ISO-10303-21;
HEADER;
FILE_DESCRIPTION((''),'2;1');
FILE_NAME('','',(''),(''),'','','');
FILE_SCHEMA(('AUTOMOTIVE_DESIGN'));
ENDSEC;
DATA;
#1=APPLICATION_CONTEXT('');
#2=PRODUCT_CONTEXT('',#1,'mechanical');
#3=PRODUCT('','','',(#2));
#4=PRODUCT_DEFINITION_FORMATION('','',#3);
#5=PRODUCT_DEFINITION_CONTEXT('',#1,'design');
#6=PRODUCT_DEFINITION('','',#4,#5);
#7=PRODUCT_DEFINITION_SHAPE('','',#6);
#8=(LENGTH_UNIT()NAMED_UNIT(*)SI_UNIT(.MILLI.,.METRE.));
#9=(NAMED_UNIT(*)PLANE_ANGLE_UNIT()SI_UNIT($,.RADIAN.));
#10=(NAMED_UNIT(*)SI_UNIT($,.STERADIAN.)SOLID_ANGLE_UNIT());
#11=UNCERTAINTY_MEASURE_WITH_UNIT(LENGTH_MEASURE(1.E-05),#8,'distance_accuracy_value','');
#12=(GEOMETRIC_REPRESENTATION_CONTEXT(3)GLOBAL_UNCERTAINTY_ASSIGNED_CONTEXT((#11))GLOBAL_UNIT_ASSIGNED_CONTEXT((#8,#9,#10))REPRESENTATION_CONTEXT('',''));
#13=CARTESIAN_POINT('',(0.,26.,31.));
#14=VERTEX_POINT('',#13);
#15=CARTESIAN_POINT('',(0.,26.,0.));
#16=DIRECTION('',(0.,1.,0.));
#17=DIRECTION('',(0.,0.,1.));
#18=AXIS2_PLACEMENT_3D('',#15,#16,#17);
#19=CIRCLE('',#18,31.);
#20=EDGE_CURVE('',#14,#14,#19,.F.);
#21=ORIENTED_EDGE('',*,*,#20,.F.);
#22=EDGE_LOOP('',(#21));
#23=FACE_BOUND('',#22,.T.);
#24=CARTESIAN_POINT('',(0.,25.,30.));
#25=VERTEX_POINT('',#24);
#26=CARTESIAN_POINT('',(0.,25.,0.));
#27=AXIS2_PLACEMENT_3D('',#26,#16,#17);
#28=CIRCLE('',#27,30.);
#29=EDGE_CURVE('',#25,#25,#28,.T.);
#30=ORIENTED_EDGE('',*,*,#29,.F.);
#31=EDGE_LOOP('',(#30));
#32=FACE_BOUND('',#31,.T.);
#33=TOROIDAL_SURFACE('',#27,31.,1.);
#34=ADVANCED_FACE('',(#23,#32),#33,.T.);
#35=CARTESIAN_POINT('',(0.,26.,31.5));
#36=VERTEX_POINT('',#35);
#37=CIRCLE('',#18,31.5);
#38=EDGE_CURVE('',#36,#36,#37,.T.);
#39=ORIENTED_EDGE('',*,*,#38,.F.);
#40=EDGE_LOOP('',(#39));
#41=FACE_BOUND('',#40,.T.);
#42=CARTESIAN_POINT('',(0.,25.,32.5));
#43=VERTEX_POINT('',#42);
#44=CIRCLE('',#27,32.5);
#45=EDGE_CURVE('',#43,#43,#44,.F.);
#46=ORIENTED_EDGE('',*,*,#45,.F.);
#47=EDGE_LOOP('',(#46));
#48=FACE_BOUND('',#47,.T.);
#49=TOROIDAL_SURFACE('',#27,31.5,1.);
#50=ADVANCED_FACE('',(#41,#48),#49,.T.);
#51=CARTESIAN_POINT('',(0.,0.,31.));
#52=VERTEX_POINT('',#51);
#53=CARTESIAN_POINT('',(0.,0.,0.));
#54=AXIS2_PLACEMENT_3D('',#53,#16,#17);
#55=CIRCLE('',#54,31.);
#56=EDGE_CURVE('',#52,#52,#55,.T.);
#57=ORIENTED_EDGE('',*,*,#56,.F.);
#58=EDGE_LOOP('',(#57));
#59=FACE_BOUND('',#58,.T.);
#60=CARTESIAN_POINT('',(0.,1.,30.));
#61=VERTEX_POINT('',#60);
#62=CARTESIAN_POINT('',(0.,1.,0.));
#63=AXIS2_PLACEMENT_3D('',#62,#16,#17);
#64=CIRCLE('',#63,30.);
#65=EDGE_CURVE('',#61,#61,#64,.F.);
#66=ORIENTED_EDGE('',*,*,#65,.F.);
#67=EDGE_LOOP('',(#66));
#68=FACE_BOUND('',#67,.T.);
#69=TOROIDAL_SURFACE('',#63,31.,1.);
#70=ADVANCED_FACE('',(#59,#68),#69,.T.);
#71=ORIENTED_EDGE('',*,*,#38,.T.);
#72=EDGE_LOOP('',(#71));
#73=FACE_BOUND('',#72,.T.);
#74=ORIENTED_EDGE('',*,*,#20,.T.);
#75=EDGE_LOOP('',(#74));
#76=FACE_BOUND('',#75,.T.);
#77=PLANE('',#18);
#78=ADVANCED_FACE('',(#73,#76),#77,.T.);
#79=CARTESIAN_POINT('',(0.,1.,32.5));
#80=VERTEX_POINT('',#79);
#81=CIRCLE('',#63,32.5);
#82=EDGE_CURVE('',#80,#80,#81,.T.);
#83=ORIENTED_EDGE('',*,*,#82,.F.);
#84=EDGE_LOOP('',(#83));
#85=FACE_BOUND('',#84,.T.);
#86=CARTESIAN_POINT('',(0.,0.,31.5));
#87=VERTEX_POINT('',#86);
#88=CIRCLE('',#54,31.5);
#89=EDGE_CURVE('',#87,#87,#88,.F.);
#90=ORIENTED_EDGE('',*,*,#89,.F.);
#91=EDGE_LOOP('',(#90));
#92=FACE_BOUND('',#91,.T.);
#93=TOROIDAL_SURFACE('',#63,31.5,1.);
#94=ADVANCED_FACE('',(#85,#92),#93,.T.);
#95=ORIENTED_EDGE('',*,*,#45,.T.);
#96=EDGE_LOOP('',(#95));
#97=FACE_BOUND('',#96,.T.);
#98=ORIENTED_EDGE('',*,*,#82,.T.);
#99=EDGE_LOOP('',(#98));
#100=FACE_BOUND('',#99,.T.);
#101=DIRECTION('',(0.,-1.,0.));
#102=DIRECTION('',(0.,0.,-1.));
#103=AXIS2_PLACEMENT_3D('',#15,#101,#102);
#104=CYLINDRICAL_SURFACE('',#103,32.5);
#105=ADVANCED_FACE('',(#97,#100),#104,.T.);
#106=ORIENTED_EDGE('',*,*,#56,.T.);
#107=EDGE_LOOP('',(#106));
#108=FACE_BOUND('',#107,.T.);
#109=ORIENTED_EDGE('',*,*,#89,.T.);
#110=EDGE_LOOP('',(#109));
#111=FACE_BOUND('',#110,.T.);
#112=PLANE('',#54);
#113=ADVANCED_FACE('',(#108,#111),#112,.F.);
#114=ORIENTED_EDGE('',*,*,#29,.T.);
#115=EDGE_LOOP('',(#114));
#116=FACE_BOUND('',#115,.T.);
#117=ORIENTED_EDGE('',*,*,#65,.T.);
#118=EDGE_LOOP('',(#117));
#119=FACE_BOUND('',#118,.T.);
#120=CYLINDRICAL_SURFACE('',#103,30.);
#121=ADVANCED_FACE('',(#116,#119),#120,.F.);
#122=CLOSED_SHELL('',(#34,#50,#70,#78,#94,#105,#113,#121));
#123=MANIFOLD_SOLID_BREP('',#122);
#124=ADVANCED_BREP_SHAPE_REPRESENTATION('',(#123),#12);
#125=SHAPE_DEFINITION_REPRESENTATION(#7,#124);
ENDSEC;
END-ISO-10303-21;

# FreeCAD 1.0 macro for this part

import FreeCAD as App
import Part
import Sketcher

V = App.Vector
Q = App.Units.Quantity


def edges_at(feature, points):
    """Names of the edges that pass closest to the given points."""
    edges = feature.Shape.Edges
    near = lambda p: min(range(len(edges)), key=lambda i: edges[i].distToShape(Part.Vertex(*p))[0])
    return sorted({f"Edge{near(p) + 1}" for p in points})

doc = App.newDocument("Part")
params = doc.addObject("Spreadsheet::Sheet", "Params")
for row, (alias, value) in enumerate([
    ("sketch1_diameter", "65 mm"),
    ("sketch1_diameter2", "60 mm"),
    ("pad1_length", "26 mm"),
    ("fillet_radius", "1 mm"),
], start=1):
    params.set(f"A{row}", alias)
    params.set(f"B{row}", "=" + value)
    params.setAlias(f"B{row}", alias)

body = doc.addObject("PartDesign::Body", "Body")

# Sketch on XZ plane
sketch1 = doc.addObject("Sketcher::SketchObject", "Sketch")
body.addObject(sketch1)
sketch1.AttachmentSupport = (doc.XZ_Plane, [""])
sketch1.MapMode = "FlatFace"
sketch1.addGeometry(Part.Circle(V(0, 0, 0), V(0, 0, 1), 32), False)
sketch1.addGeometry(Part.Circle(V(0, 0, 0), V(0, 0, 1), 30), False)
sketch1.addConstraint(Sketcher.Constraint("Coincident", 0, 3, -1, 1))
sketch1.addConstraint(Sketcher.Constraint("Coincident", 1, 3, -1, 1))
sketch1.addConstraint(Sketcher.Constraint("Diameter", 0, Q("65 mm")))
sketch1.addConstraint(Sketcher.Constraint("Diameter", 1, Q("60 mm")))
sketch1.setExpression("Constraints[2]", "Params.sketch1_diameter")
sketch1.setExpression("Constraints[3]", "Params.sketch1_diameter2")
pad1 = doc.addObject("PartDesign::Pad", "Pad")
body.addObject(pad1)
pad1.Profile = sketch1
pad1.setExpression("Length", "Params.pad1_length")
pad1.Reversed = True
doc.recompute()

fillet = doc.addObject("PartDesign::Fillet", "Fillet")
body.addObject(fillet)
fillet.Base = (pad1, edges_at(pad1, [
    (-32.5, 0, 0),
    (-32.5, 26, 0),
    (-30, 0, 0),
    (-30, 26, 0),
]))
fillet.setExpression("Radius", "Params.fillet_radius")

doc.recompute()
